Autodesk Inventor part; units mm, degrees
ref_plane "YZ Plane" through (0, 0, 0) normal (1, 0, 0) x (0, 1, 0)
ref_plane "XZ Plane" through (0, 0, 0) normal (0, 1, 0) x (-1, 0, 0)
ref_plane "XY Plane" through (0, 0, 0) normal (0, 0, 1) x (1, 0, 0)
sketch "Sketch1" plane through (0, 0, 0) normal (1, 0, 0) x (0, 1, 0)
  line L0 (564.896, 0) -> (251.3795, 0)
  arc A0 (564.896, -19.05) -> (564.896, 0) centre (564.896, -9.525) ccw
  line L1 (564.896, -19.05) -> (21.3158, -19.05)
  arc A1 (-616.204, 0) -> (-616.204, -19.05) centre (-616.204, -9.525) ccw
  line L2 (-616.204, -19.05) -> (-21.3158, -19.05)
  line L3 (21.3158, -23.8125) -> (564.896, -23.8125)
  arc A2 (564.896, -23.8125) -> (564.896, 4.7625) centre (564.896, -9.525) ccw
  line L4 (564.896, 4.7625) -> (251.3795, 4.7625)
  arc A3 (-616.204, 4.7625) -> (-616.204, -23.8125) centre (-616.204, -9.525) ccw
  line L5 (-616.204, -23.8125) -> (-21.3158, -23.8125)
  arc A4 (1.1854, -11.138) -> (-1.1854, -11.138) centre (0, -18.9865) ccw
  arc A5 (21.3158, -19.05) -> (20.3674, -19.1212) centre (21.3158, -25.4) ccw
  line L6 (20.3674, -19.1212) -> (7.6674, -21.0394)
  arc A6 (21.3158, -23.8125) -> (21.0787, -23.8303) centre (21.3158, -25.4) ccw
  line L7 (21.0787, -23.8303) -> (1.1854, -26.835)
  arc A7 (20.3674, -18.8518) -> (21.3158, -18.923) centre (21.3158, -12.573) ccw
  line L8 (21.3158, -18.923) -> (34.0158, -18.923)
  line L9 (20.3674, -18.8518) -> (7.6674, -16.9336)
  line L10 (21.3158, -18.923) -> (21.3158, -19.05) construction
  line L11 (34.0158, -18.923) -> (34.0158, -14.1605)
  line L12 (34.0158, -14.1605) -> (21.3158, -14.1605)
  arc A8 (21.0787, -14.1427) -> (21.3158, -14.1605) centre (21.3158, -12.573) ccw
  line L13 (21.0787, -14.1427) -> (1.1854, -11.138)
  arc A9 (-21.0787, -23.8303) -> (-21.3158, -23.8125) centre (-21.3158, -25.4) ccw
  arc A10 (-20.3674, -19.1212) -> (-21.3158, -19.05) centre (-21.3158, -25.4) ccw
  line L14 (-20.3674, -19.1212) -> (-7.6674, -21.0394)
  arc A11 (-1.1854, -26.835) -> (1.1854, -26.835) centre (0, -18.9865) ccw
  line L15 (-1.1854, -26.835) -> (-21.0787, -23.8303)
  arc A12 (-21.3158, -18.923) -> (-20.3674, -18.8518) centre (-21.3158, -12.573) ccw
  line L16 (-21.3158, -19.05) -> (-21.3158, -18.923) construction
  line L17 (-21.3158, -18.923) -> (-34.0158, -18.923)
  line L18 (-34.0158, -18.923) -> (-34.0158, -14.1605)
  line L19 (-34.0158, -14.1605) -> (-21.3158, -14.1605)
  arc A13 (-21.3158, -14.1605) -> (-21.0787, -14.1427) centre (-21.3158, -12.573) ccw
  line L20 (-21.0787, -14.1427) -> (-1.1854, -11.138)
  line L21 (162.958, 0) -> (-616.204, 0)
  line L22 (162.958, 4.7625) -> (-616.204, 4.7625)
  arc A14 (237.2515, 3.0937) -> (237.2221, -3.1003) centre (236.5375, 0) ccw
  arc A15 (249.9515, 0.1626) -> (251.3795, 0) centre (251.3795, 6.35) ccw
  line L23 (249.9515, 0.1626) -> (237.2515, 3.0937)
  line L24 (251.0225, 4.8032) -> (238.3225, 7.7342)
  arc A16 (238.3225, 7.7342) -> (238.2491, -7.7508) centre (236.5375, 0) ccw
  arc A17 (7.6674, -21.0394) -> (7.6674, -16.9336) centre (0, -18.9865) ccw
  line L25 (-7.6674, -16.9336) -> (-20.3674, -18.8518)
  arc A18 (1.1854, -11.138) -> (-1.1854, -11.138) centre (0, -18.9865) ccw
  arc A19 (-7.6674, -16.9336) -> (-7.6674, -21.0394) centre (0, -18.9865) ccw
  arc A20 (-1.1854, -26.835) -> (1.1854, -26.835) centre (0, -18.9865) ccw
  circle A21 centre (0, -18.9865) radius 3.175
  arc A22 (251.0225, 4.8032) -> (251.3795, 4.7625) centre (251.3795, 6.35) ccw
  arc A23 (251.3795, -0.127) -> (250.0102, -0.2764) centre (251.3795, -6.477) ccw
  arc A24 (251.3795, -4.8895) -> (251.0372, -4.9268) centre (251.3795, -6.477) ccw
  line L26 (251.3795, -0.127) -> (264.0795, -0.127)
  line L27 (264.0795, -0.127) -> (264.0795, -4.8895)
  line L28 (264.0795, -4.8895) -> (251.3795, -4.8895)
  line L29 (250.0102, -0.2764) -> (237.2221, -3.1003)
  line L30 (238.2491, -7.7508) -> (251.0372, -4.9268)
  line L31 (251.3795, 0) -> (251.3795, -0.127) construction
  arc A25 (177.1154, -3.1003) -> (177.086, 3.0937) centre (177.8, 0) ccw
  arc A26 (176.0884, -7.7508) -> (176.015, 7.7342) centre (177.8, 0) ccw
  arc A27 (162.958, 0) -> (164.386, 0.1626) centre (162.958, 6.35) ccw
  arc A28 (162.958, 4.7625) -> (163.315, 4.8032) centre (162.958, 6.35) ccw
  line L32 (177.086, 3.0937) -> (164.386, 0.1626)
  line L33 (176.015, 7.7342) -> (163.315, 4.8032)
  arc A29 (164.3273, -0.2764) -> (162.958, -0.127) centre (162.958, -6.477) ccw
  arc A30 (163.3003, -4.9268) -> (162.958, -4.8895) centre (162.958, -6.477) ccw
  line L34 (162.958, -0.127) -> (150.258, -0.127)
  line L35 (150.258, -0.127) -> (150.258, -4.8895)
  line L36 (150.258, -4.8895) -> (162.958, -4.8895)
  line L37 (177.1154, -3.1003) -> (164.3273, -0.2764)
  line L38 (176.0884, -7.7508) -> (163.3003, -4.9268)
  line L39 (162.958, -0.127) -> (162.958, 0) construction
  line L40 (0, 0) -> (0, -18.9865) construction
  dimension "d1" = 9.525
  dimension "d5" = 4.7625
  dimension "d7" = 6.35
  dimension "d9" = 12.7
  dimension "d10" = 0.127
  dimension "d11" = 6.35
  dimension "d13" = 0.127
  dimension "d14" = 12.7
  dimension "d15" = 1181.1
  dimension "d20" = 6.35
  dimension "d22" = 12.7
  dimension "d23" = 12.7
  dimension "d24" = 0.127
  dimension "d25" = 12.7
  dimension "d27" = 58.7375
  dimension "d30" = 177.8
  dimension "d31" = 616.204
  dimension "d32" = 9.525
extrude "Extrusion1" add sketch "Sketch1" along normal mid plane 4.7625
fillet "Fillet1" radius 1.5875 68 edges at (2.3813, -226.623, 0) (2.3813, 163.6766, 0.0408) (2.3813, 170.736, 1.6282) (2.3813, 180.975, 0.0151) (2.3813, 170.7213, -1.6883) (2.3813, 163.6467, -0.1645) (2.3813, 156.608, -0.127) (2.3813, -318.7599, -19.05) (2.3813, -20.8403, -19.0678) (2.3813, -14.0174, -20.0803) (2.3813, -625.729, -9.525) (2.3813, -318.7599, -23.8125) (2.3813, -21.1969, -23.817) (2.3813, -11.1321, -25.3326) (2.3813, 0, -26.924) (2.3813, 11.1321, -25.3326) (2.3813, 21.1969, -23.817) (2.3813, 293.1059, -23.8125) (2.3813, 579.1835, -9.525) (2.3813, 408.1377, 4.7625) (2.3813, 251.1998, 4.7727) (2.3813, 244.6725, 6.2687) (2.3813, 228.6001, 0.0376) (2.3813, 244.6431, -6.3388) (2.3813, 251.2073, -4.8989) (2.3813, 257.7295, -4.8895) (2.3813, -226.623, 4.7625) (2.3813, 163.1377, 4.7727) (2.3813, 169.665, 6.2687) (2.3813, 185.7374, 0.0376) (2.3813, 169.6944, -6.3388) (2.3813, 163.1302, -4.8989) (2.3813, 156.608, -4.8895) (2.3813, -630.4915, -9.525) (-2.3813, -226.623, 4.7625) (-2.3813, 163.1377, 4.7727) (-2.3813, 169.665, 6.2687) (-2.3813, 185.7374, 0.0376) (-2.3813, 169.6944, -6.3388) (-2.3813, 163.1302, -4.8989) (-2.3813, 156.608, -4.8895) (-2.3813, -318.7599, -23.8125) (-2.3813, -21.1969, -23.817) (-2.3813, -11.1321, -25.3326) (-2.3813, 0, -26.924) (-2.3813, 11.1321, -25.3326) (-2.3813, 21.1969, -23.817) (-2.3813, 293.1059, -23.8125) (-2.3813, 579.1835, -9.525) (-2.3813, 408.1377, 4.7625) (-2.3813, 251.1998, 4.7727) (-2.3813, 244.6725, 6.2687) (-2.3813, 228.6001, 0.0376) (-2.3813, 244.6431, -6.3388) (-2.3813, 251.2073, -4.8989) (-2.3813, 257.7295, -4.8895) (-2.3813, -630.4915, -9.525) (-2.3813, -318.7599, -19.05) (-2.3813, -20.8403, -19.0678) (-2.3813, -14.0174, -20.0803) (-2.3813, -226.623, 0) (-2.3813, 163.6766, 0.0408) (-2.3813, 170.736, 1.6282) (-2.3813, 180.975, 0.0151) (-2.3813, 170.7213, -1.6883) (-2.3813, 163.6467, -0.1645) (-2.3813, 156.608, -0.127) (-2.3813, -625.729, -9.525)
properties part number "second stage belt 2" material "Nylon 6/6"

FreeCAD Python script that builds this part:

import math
import FreeCAD as App
import Part
import Sketcher
Q = App.Units.Quantity


def edges_at(feature, points):
    """Names of the edges that pass closest to the given points."""
    edges = feature.Shape.Edges
    near = lambda p: min(range(len(edges)), key=lambda i: edges[i].distToShape(Part.Vertex(*p))[0])
    return sorted({f"Edge{near(p) + 1}" for p in points})

doc = App.newDocument("Part")
body = doc.addObject("PartDesign::Body", "Body")

sketch1 = body.newObject("Sketcher::SketchObject", "Sketch")
sketch1.AttachmentSupport = (doc.getObject("YZ_Plane"), [""])
sketch1.MapMode = "FlatFace"
sketch1.addGeometry([
    Part.LineSegment(App.Vector(251.3795, 0, 0), App.Vector(564.896, 0, 0)),
    Part.ArcOfCircle(Part.Circle(App.Vector(564.896, -9.525, 0), App.Vector(0, 0, 1), 9.525), math.radians(-90), math.radians(90)),
    Part.LineSegment(App.Vector(564.896, -19.05, 0), App.Vector(21.3158, -19.05, 0)),
    Part.ArcOfCircle(Part.Circle(App.Vector(21.315954, -25.404097, 0), App.Vector(0, 0, 1), 6.354097), math.radians(90.001385), math.radians(98.585332)),
    Part.LineSegment(App.Vector(20.3674, -19.1212, 0), App.Vector(7.6674, -21.0394, 0)),
    Part.ArcOfCircle(Part.Circle(App.Vector(0, -18.9865, 0), App.Vector(0, 0, 1), 7.937469), math.radians(-14.989028), math.radians(14.989028)),
    Part.LineSegment(App.Vector(7.6674, -16.9336, 0), App.Vector(20.3674, -18.8518, 0)),
    Part.ArcOfCircle(Part.Circle(App.Vector(21.315341, -12.577068, 0), App.Vector(0, 0, 1), 6.345932), math.radians(-98.590865), math.radians(-89.995852)),
    Part.LineSegment(App.Vector(21.3158, -18.923, 0), App.Vector(34.0158, -18.923, 0)),
    Part.LineSegment(App.Vector(34.0158, -18.923, 0), App.Vector(34.0158, -14.1605, 0)),
    Part.LineSegment(App.Vector(34.0158, -14.1605, 0), App.Vector(21.3158, -14.1605, 0)),
    Part.ArcOfCircle(Part.Circle(App.Vector(21.315685, -12.574017, 0), App.Vector(0, 0, 1), 1.586483), math.radians(-98.590865), math.radians(-89.995852)),
    Part.LineSegment(App.Vector(21.0787, -14.1427, 0), App.Vector(1.1854, -11.138, 0)),
    Part.ArcOfCircle(Part.Circle(App.Vector(0, -18.9865, 0), App.Vector(0, 0, 1), 7.937514), math.radians(81.411234), math.radians(98.588766)),
    Part.LineSegment(App.Vector(-1.1854, -11.138, 0), App.Vector(-21.0787, -14.1427, 0)),
    Part.ArcOfCircle(Part.Circle(App.Vector(-21.315838, -12.571976, 0), App.Vector(0, 0, 1), 1.588524), math.radians(-89.998615), math.radians(-81.414668)),
    Part.LineSegment(App.Vector(-21.3158, -14.1605, 0), App.Vector(-34.0158, -14.1605, 0)),
    Part.LineSegment(App.Vector(-34.0158, -14.1605, 0), App.Vector(-34.0158, -18.923, 0)),
    Part.LineSegment(App.Vector(-34.0158, -18.923, 0), App.Vector(-21.3158, -18.923, 0)),
    Part.ArcOfCircle(Part.Circle(App.Vector(-21.315954, -12.568903, 0), App.Vector(0, 0, 1), 6.354097), math.radians(-89.998615), math.radians(-81.414668)),
    Part.LineSegment(App.Vector(-20.3674, -18.8518, 0), App.Vector(-7.6674, -16.9336, 0)),
    Part.ArcOfCircle(Part.Circle(App.Vector(0, -18.9865, 0), App.Vector(0, 0, 1), 7.937469), math.radians(165.010972), math.radians(194.989028)),
    Part.LineSegment(App.Vector(-7.6674, -21.0394, 0), App.Vector(-20.3674, -19.1212, 0)),
    Part.ArcOfCircle(Part.Circle(App.Vector(-21.315341, -25.395932, 0), App.Vector(0, 0, 1), 6.345932), math.radians(81.409135), math.radians(90.004148)),
    Part.LineSegment(App.Vector(-21.3158, -19.05, 0), App.Vector(-616.204, -19.05, 0)),
    Part.ArcOfCircle(Part.Circle(App.Vector(-616.204, -9.525, 0), App.Vector(0, 0, 1), 9.525), math.radians(90), math.radians(270)),
    Part.LineSegment(App.Vector(-616.204, 0, 0), App.Vector(162.958, 0, 0)),
    Part.ArcOfCircle(Part.Circle(App.Vector(162.95779, 6.353696, 0), App.Vector(0, 0, 1), 6.353696), math.radians(-89.998108), math.radians(-77.009818)),
    Part.LineSegment(App.Vector(164.386, 0.1626, 0), App.Vector(177.086, 3.0937, 0)),
    Part.ArcOfCircle(Part.Circle(App.Vector(177.8, 0, 0), App.Vector(0, 0, 1), 3.174986), math.radians(-102.452079), math.radians(102.995834)),
    Part.LineSegment(App.Vector(177.1154, -3.1003, 0), App.Vector(164.3273, -0.2764, 0)),
    Part.ArcOfCircle(Part.Circle(App.Vector(162.958, -6.477, 0), App.Vector(0, 0, 1), 6.349994), math.radians(77.54704), math.radians(90)),
    Part.LineSegment(App.Vector(162.958, -0.127, 0), App.Vector(150.258, -0.127, 0)),
    Part.LineSegment(App.Vector(150.258, -0.127, 0), App.Vector(150.258, -4.8895, 0)),
    Part.LineSegment(App.Vector(150.258, -4.8895, 0), App.Vector(162.958, -4.8895, 0)),
    Part.ArcOfCircle(Part.Circle(App.Vector(162.958576, -6.473496, 0), App.Vector(0, 0, 1), 1.583996), math.radians(77.541335), math.radians(90.020841)),
    Part.LineSegment(App.Vector(163.3003, -4.9268, 0), App.Vector(176.0884, -7.7508, 0)),
    Part.ArcOfCircle(Part.Circle(App.Vector(177.8, 0, 0), App.Vector(0, 0, 1), 7.937536), math.radians(-102.452706), math.radians(102.995915)),
    Part.LineSegment(App.Vector(176.015, 7.7342, 0), App.Vector(163.315, 4.8032, 0)),
    Part.ArcOfCircle(Part.Circle(App.Vector(162.958163, 6.347137, 0), App.Vector(0, 0, 1), 1.584637), math.radians(-90.005877), math.radians(-76.986205)),
    Part.LineSegment(App.Vector(162.958, 4.7625, 0), App.Vector(-616.204, 4.7625, 0)),
    Part.ArcOfCircle(Part.Circle(App.Vector(-616.204, -9.525, 0), App.Vector(0, 0, 1), 14.2875), math.radians(90), math.radians(270)),
    Part.LineSegment(App.Vector(-616.204, -23.8125, 0), App.Vector(-21.3158, -23.8125, 0)),
    Part.ArcOfCircle(Part.Circle(App.Vector(-21.315685, -25.398983, 0), App.Vector(0, 0, 1), 1.586483), math.radians(81.409135), math.radians(90.004148)),
    Part.LineSegment(App.Vector(-21.0787, -23.8303, 0), App.Vector(-1.1854, -26.835, 0)),
    Part.ArcOfCircle(Part.Circle(App.Vector(0, -18.9865, 0), App.Vector(0, 0, 1), 7.937514), math.radians(-98.588766), math.radians(-81.411234)),
    Part.LineSegment(App.Vector(1.1854, -26.835, 0), App.Vector(21.0787, -23.8303, 0)),
    Part.ArcOfCircle(Part.Circle(App.Vector(21.315838, -25.401024, 0), App.Vector(0, 0, 1), 1.588524), math.radians(90.001385), math.radians(98.585332)),
    Part.LineSegment(App.Vector(21.3158, -23.8125, 0), App.Vector(564.896, -23.8125, 0)),
    Part.ArcOfCircle(Part.Circle(App.Vector(564.896, -9.525, 0), App.Vector(0, 0, 1), 14.2875), math.radians(-90), math.radians(90)),
    Part.LineSegment(App.Vector(564.896, 4.7625, 0), App.Vector(251.3795, 4.7625, 0)),
    Part.ArcOfCircle(Part.Circle(App.Vector(251.379987, 6.352837, 0), App.Vector(0, 0, 1), 1.590337), math.radians(-102.990363), math.radians(-90.017555)),
    Part.LineSegment(App.Vector(251.0225, 4.8032, 0), App.Vector(238.3225, 7.7342, 0)),
    Part.ArcOfCircle(Part.Circle(App.Vector(236.5375, 0, 0), App.Vector(0, 0, 1), 7.937511), math.radians(77.004085), math.radians(282.452706)),
    Part.LineSegment(App.Vector(238.2491, -7.7508, 0), App.Vector(251.0372, -4.9268, 0)),
    Part.ArcOfCircle(Part.Circle(App.Vector(251.379694, -6.480561, 0), App.Vector(0, 0, 1), 1.591061), math.radians(90.006975), math.radians(102.430849)),
    Part.LineSegment(App.Vector(251.3795, -4.8895, 0), App.Vector(264.0795, -4.8895, 0)),
    Part.LineSegment(App.Vector(264.0795, -4.8895, 0), App.Vector(264.0795, -0.127, 0)),
    Part.LineSegment(App.Vector(264.0795, -0.127, 0), App.Vector(251.3795, -0.127, 0)),
    Part.ArcOfCircle(Part.Circle(App.Vector(251.3795, -6.477, 0), App.Vector(0, 0, 1), 6.35), math.radians(90), math.radians(102.45296)),
    Part.LineSegment(App.Vector(250.0102, -0.2764, 0), App.Vector(237.2221, -3.1003, 0)),
    Part.ArcOfCircle(Part.Circle(App.Vector(236.5375, 0, 0), App.Vector(0, 0, 1), 3.175024), math.radians(77.004166), math.radians(282.452079)),
    Part.LineSegment(App.Vector(237.2515, 3.0937, 0), App.Vector(249.9515, 0.1626, 0)),
    Part.ArcOfCircle(Part.Circle(App.Vector(251.378874, 6.346356, 0), App.Vector(0, 0, 1), 6.346356), math.radians(-102.997726), math.radians(-89.994348)),
    Part.Circle(App.Vector(0, -18.9865, 0), App.Vector(0, 0, 1), 3.175),
], False)
sketch1.addConstraint([
    Sketcher.Constraint("Coincident", 0, 2, 1, 2),
    Sketcher.Constraint("Coincident", 1, 1, 2, 1),
    Sketcher.Constraint("Coincident", 2, 2, 3, 1),
    Sketcher.Constraint("Coincident", 3, 2, 4, 1),
    Sketcher.Constraint("Coincident", 4, 2, 5, 1),
    Sketcher.Constraint("Coincident", 5, 2, 6, 1),
    Sketcher.Constraint("Coincident", 6, 2, 7, 1),
    Sketcher.Constraint("Coincident", 7, 2, 8, 1),
    Sketcher.Constraint("Coincident", 8, 2, 9, 1),
    Sketcher.Constraint("Coincident", 9, 2, 10, 1),
    Sketcher.Constraint("Coincident", 10, 2, 11, 2),
    Sketcher.Constraint("Coincident", 11, 1, 12, 1),
    Sketcher.Constraint("Coincident", 12, 2, 13, 1),
    Sketcher.Constraint("Coincident", 13, 2, 14, 1),
    Sketcher.Constraint("Coincident", 14, 2, 15, 2),
    Sketcher.Constraint("Coincident", 15, 1, 16, 1),
    Sketcher.Constraint("Coincident", 16, 2, 17, 1),
    Sketcher.Constraint("Coincident", 17, 2, 18, 1),
    Sketcher.Constraint("Coincident", 18, 2, 19, 1),
    Sketcher.Constraint("Coincident", 19, 2, 20, 1),
    Sketcher.Constraint("Coincident", 20, 2, 21, 1),
    Sketcher.Constraint("Coincident", 21, 2, 22, 1),
    Sketcher.Constraint("Coincident", 22, 2, 23, 1),
    Sketcher.Constraint("Coincident", 23, 2, 24, 1),
    Sketcher.Constraint("Coincident", 24, 2, 25, 2),
    Sketcher.Constraint("Coincident", 25, 1, 26, 1),
    Sketcher.Constraint("Coincident", 26, 2, 27, 1),
    Sketcher.Constraint("Coincident", 27, 2, 28, 1),
    Sketcher.Constraint("Coincident", 28, 2, 29, 2),
    Sketcher.Constraint("Coincident", 29, 1, 30, 1),
    Sketcher.Constraint("Coincident", 30, 2, 31, 1),
    Sketcher.Constraint("Coincident", 31, 2, 32, 1),
    Sketcher.Constraint("Coincident", 32, 2, 33, 1),
    Sketcher.Constraint("Coincident", 33, 2, 34, 1),
    Sketcher.Constraint("Coincident", 34, 2, 35, 2),
    Sketcher.Constraint("Coincident", 35, 1, 36, 1),
    Sketcher.Constraint("Coincident", 36, 2, 37, 1),
    Sketcher.Constraint("Coincident", 37, 2, 38, 1),
    Sketcher.Constraint("Coincident", 38, 2, 39, 2),
    Sketcher.Constraint("Coincident", 39, 1, 40, 1),
    Sketcher.Constraint("Coincident", 40, 2, 41, 1),
    Sketcher.Constraint("Coincident", 41, 2, 42, 1),
    Sketcher.Constraint("Coincident", 42, 2, 43, 2),
    Sketcher.Constraint("Coincident", 43, 1, 44, 1),
    Sketcher.Constraint("Coincident", 44, 2, 45, 1),
    Sketcher.Constraint("Coincident", 45, 2, 46, 1),
    Sketcher.Constraint("Coincident", 46, 2, 47, 2),
    Sketcher.Constraint("Coincident", 47, 1, 48, 1),
    Sketcher.Constraint("Coincident", 48, 2, 49, 1),
    Sketcher.Constraint("Coincident", 49, 2, 50, 1),
    Sketcher.Constraint("Coincident", 50, 2, 51, 2),
    Sketcher.Constraint("Coincident", 51, 1, 52, 1),
    Sketcher.Constraint("Coincident", 52, 2, 53, 1),
    Sketcher.Constraint("Coincident", 53, 2, 54, 1),
    Sketcher.Constraint("Coincident", 54, 2, 55, 2),
    Sketcher.Constraint("Coincident", 55, 1, 56, 1),
    Sketcher.Constraint("Coincident", 56, 2, 57, 1),
    Sketcher.Constraint("Coincident", 57, 2, 58, 1),
    Sketcher.Constraint("Coincident", 58, 2, 59, 1),
    Sketcher.Constraint("Coincident", 59, 2, 60, 1),
    Sketcher.Constraint("Coincident", 60, 2, 61, 2),
    Sketcher.Constraint("Coincident", 61, 1, 62, 1),
    Sketcher.Constraint("Coincident", 62, 2, 63, 1),
    Sketcher.Constraint("Coincident", 63, 2, 0, 1),
    Sketcher.Constraint("Horizontal", 0),
    Sketcher.Constraint("Horizontal", 2),
    Sketcher.Constraint("Horizontal", 8),
    Sketcher.Constraint("Vertical", 9),
    Sketcher.Constraint("Horizontal", 10),
    Sketcher.Constraint("Horizontal", 16),
    Sketcher.Constraint("Vertical", 17),
    Sketcher.Constraint("Horizontal", 18),
    Sketcher.Constraint("Horizontal", 24),
    Sketcher.Constraint("Horizontal", 26),
    Sketcher.Constraint("Horizontal", 32),
    Sketcher.Constraint("Vertical", 33),
    Sketcher.Constraint("Horizontal", 34),
    Sketcher.Constraint("Horizontal", 40),
    Sketcher.Constraint("Horizontal", 42),
    Sketcher.Constraint("Horizontal", 48),
    Sketcher.Constraint("Horizontal", 50),
    Sketcher.Constraint("Horizontal", 56),
    Sketcher.Constraint("Vertical", 57),
    Sketcher.Constraint("Horizontal", 58),
    Sketcher.Constraint("Coincident", 13, 3, 5, 3),
    Sketcher.Constraint("Coincident", 21, 3, 5, 3),
    Sketcher.Constraint("Coincident", 37, 3, 29, 3),
    Sketcher.Constraint("Coincident", 41, 3, 25, 3),
    Sketcher.Constraint("Coincident", 45, 3, 5, 3),
    Sketcher.Constraint("Coincident", 49, 3, 1, 3),
    Sketcher.Constraint("Coincident", 61, 3, 53, 3),
    Sketcher.Constraint("Coincident", 64, 3, 5, 3),
    Sketcher.Constraint("PointOnObject", 5, 3, -2),
    Sketcher.Constraint("PointOnObject", 29, 3, -1),
    Sketcher.Constraint("PointOnObject", 53, 3, -1),
    Sketcher.Constraint("PointOnObject", 0, 2, -1),
    Sketcher.Constraint("PointOnObject", 25, 1, -1),
    Sketcher.Constraint("Diameter", 64, Q("0.25 in")),
    Sketcher.Constraint("Radius", 31, Q("0.25 in")),
    Sketcher.Constraint("Radius", 59, Q("0.25 in")),
    Sketcher.Constraint("DistanceX", 8, 1, 8, 2, Q("0.5 in")),
    Sketcher.Constraint("DistanceX", 10, 2, 10, 1, Q("0.5 in")),
    Sketcher.Constraint("DistanceX", 16, 2, 16, 1, Q("0.5 in")),
    Sketcher.Constraint("DistanceX", 18, 1, 18, 2, Q("0.5 in")),
    Sketcher.Constraint("DistanceX", 32, 2, 32, 1, Q("0.5 in")),
    Sketcher.Constraint("DistanceX", 34, 1, 34, 2, Q("0.5 in")),
    Sketcher.Constraint("DistanceX", 56, 1, 56, 2, Q("0.5 in")),
    Sketcher.Constraint("DistanceX", 58, 2, 58, 1, Q("0.5 in")),
    Sketcher.Constraint("DistanceX", -1, 1, 29, 3, Q("7 in")),
    Sketcher.Constraint("Radius", 1, Q("0.375 in")),
    Sketcher.Constraint("Radius", 25, Q("0.375 in")),
    Sketcher.Constraint("Radius", 29, Q("0.125 in")),
    Sketcher.Constraint("Radius", 61, Q("0.125 in")),
    Sketcher.Constraint("DistanceY", 9, 1, 9, 2, Q("0.1875 in")),
    Sketcher.Constraint("DistanceY", 17, 2, 17, 1, Q("0.1875 in")),
    Sketcher.Constraint("DistanceY", 33, 2, 33, 1, Q("0.1875 in")),
    Sketcher.Constraint("DistanceY", 57, 1, 57, 2, Q("0.1875 in")),
    Sketcher.Constraint("DistanceX", 25, 3, -1, 1, Q("24.26 in")),
    Sketcher.Constraint("DistanceX", 24, 2, -1, 1, Q("24.26 in")),
    Sketcher.Constraint("DistanceX", 25, 1, -1, 1, Q("24.26 in")),
    Sketcher.Constraint("DistanceX", 40, 2, -1, 1, Q("24.26 in")),
    Sketcher.Constraint("DistanceX", 41, 2, -1, 1, Q("24.26 in")),
    Sketcher.Constraint("DistanceY", 31, 2, -1, 1, Q("0.005 in")),
    Sketcher.Constraint("DistanceY", -1, 1, 39, 1, Q("0.1875 in")),
    Sketcher.Constraint("DistanceY", -1, 1, 49, 2, Q("0.1875 in")),
    Sketcher.Constraint("DistanceY", 57, 2, -1, 1, Q("0.005 in")),
    Sketcher.Constraint("Radius", 5, Q("0.3125 in")),
    Sketcher.Constraint("Radius", 13, Q("0.3125 in")),
    Sketcher.Constraint("Radius", 21, Q("0.3125 in")),
    Sketcher.Constraint("Radius", 37, Q("0.3125 in")),
    Sketcher.Constraint("Radius", 45, Q("0.3125 in")),
    Sketcher.Constraint("Radius", 53, Q("0.3125 in")),
    Sketcher.Constraint("Radius", 51, Q("0.0626 in")),
    Sketcher.Constraint("DistanceX", -1, 1, 1, 3, Q("22.24 in")),
    Sketcher.Constraint("DistanceX", -1, 1, 0, 2, Q("22.24 in")),
    Sketcher.Constraint("DistanceX", -1, 1, 1, 1, Q("22.24 in")),
    Sketcher.Constraint("DistanceX", -1, 1, 48, 2, Q("22.24 in")),
    Sketcher.Constraint("DistanceX", -1, 1, 49, 2, Q("22.24 in")),
    Sketcher.Constraint("Radius", 3, Q("6.354 mm")),
    Sketcher.Constraint("Radius", 7, Q("6.346 mm")),
    Sketcher.Constraint("Radius", 11, Q("1.5865 mm")),
    Sketcher.Constraint("Radius", 15, Q("1.5885 mm")),
    Sketcher.Constraint("Radius", 19, Q("6.354 mm")),
    Sketcher.Constraint("Radius", 23, Q("6.346 mm")),
    Sketcher.Constraint("Radius", 27, Q("6.3537 mm")),
    Sketcher.Constraint("Radius", 35, Q("1.584 mm")),
    Sketcher.Constraint("Radius", 39, Q("1.5846 mm")),
    Sketcher.Constraint("Radius", 43, Q("1.5865 mm")),
    Sketcher.Constraint("Radius", 47, Q("1.5885 mm")),
    Sketcher.Constraint("Radius", 55, Q("1.591 mm")),
    Sketcher.Constraint("Radius", 63, Q("6.3464 mm")),
    Sketcher.Constraint("DistanceX", 2, 2, 2, 1, Q("21.4008 in")),
    Sketcher.Constraint("DistanceX", 24, 2, 24, 1, Q("23.4208 in")),
    Sketcher.Constraint("DistanceX", 42, 1, 42, 2, Q("23.4208 in")),
    Sketcher.Constraint("DistanceX", 48, 1, 48, 2, Q("21.4008 in")),
    Sketcher.Constraint("DistanceX", -1, 1, 53, 3, Q("9.3125 in")),
    Sketcher.Constraint("DistanceY", 7, 2, -1, 1, Q("0.745 in")),
    Sketcher.Constraint("DistanceY", 17, 2, -1, 1, Q("0.745 in")),
    Sketcher.Constraint("Distance", 30, Q("0.5156 in")),
    Sketcher.Constraint("Distance", 36, Q("0.5156 in")),
    Sketcher.Constraint("Distance", 54, Q("0.5156 in")),
    Sketcher.Constraint("Distance", 60, Q("0.5156 in")),
    Sketcher.Constraint("DistanceX", 0, 1, 0, 2, Q("313.5165 mm")),
    Sketcher.Constraint("DistanceX", 26, 1, 26, 2, Q("779.162 mm")),
    Sketcher.Constraint("DistanceX", 40, 2, 40, 1, Q("779.162 mm")),
    Sketcher.Constraint("DistanceX", 50, 2, 50, 1, Q("313.5165 mm")),
    Sketcher.Constraint("DistanceX", -1, 1, 3, 3, Q("0.8392 in")),
    Sketcher.Constraint("DistanceY", 5, 3, -1, 1, Q("0.7475 in")),
    Sketcher.Constraint("DistanceX", -1, 1, 11, 3, Q("0.8392 in")),
    Sketcher.Constraint("DistanceX", 15, 3, -1, 1, Q("0.8392 in")),
    Sketcher.Constraint("DistanceX", 19, 3, -1, 1, Q("0.8392 in")),
    Sketcher.Constraint("DistanceX", -1, 1, 35, 3, Q("6.4157 in")),
    Sketcher.Constraint("DistanceX", 43, 3, -1, 1, Q("0.8392 in")),
    Sketcher.Constraint("DistanceX", -1, 1, 47, 3, Q("0.8392 in")),
    Sketcher.Constraint("DistanceX", -1, 1, 63, 3, Q("9.8968 in")),
    Sketcher.Constraint("DistanceY", 3, 2, -1, 1, Q("0.7528 in")),
    Sketcher.Constraint("DistanceY", 6, 2, -1, 1, Q("0.7422 in")),
    Sketcher.Constraint("DistanceX", -1, 1, 7, 2, Q("0.8392 in")),
    Sketcher.Constraint("DistanceY", 11, 1, -1, 1, Q("0.5568 in")),
    Sketcher.Constraint("DistanceY", 12, 2, -1, 1, Q("0.4385 in")),
    Sketcher.Constraint("DistanceY", 13, 2, -1, 1, Q("0.4385 in")),
    Sketcher.Constraint("DistanceY", 14, 2, -1, 1, Q("0.5568 in")),
    Sketcher.Constraint("DistanceX", 15, 1, -1, 1, Q("0.8392 in")),
    Sketcher.Constraint("DistanceY", 19, 2, -1, 1, Q("0.7422 in")),
    Sketcher.Constraint("DistanceY", 22, 2, -1, 1, Q("0.7528 in")),
    Sketcher.Constraint("DistanceX", -1, 1, 27, 2, Q("6.4719 in")),
    Sketcher.Constraint("DistanceY", -1, 1, 27, 2, Q("0.0064 in")),
    Sketcher.Constraint("DistanceX", -1, 1, 28, 2, Q("6.9719 in")),
    Sketcher.Constraint("DistanceY", -1, 1, 37, 2, Q("0.3045 in")),
    Sketcher.Constraint("DistanceY", -1, 1, 38, 2, Q("0.1891 in")),
    Sketcher.Constraint("DistanceY", 43, 1, -1, 1, Q("0.9382 in")),
    Sketcher.Constraint("DistanceY", 44, 2, -1, 1, Q("1.0565 in")),
    Sketcher.Constraint("DistanceY", 45, 2, -1, 1, Q("1.0565 in")),
    Sketcher.Constraint("DistanceY", 46, 2, -1, 1, Q("0.9382 in")),
    Sketcher.Constraint("DistanceY", -1, 1, 51, 1, Q("0.1891 in")),
    Sketcher.Constraint("DistanceY", -1, 1, 52, 2, Q("0.3045 in")),
    Sketcher.Constraint("DistanceX", -1, 1, 61, 1, Q("9.3406 in")),
    Sketcher.Constraint("DistanceX", -1, 1, 62, 2, Q("9.8406 in")),
    Sketcher.Constraint("Distance", 4, Q("12.844 mm")),
    Sketcher.Constraint("Distance", 6, Q("12.844 mm")),
    Sketcher.Constraint("Distance", 20, Q("12.844 mm")),
    Sketcher.Constraint("Distance", 22, Q("12.844 mm")),
    Sketcher.Constraint("Distance", 38, Q("13.0338 mm")),
    Sketcher.Constraint("Distance", 52, Q("13.0338 mm")),
    Sketcher.Constraint("DistanceX", -1, 1, 7, 3, Q("21.3153 mm")),
    Sketcher.Constraint("DistanceX", 23, 3, -1, 1, Q("21.3153 mm")),
    Sketcher.Constraint("DistanceX", -1, 1, 31, 3, Q("162.958 mm")),
    Sketcher.Constraint("DistanceX", -1, 1, 55, 3, Q("251.3797 mm")),
    Sketcher.Constraint("DistanceX", -1, 1, 59, 3, Q("251.3795 mm")),
    Sketcher.Constraint("DistanceX", -1, 1, 29, 1, Q("177.1154 mm")),
    Sketcher.Constraint("DistanceX", -1, 1, 31, 2, Q("162.958 mm")),
    Sketcher.Constraint("DistanceX", -1, 1, 35, 1, Q("163.3003 mm")),
    Sketcher.Constraint("DistanceX", -1, 1, 53, 2, Q("238.249 mm")),
    Sketcher.Constraint("DistanceX", -1, 1, 55, 1, Q("251.3795 mm")),
    Sketcher.Constraint("DistanceX", -1, 1, 59, 2, Q("250.0102 mm")),
])
pad1 = body.newObject("PartDesign::Pad", "Pad")
pad1.Profile = sketch1
pad1.Length = Q("0.1875 in")
pad1.Midplane = True
doc.recompute()

fillet = body.newObject("PartDesign::Fillet", "Fillet")
fillet.Base = (pad1, edges_at(pad1, [
    (2.381, -226.623, 0),
    (2.381, 163.677, 0.041),
    (2.381, 170.736, 1.628),
    (2.381, 180.975, 0.015),
    (2.381, 170.721, -1.688),
    (2.381, 163.647, -0.165),
    (2.381, 156.608, -0.127),
    (2.381, -318.76, -19.05),
    (2.381, -20.84, -19.068),
    (2.381, -14.017, -20.08),
    (2.381, -625.729, -9.525),
    (2.381, -318.76, -23.812),
    (2.381, -21.197, -23.817),
    (2.381, -11.132, -25.333),
    (2.381, 0, -26.924),
    (2.381, 11.132, -25.333),
    (2.381, 21.197, -23.817),
    (2.381, 293.106, -23.812),
    (2.381, 579.183, -9.525),
    (2.381, 408.138, 4.763),
    (2.381, 251.2, 4.773),
    (2.381, 244.673, 6.269),
    (2.381, 228.6, 0.038),
    (2.381, 244.643, -6.339),
    (2.381, 251.207, -4.899),
    (2.381, 257.729, -4.889),
    (2.381, -226.623, 4.763),
    (2.381, 163.138, 4.773),
    (2.381, 169.665, 6.269),
    (2.381, 185.737, 0.038),
    (2.381, 169.694, -6.339),
    (2.381, 163.13, -4.899),
    (2.381, 156.608, -4.889),
    (2.381, -630.491, -9.525),
    (-2.381, -226.623, 4.763),
    (-2.381, 163.138, 4.773),
    (-2.381, 169.665, 6.269),
    (-2.381, 185.737, 0.038),
    (-2.381, 169.694, -6.339),
    (-2.381, 163.13, -4.899),
    (-2.381, 156.608, -4.889),
    (-2.381, -318.76, -23.812),
    (-2.381, -21.197, -23.817),
    (-2.381, -11.132, -25.333),
    (-2.381, 0, -26.924),
    (-2.381, 11.132, -25.333),
    (-2.381, 21.197, -23.817),
    (-2.381, 293.106, -23.812),
    (-2.381, 579.183, -9.525),
    (-2.381, 408.138, 4.763),
    (-2.381, 251.2, 4.773),
    (-2.381, 244.673, 6.269),
    (-2.381, 228.6, 0.038),
    (-2.381, 244.643, -6.339),
    (-2.381, 251.207, -4.899),
    (-2.381, 257.729, -4.889),
    (-2.381, -630.491, -9.525),
    (-2.381, -318.76, -19.05),
    (-2.381, -20.84, -19.068),
    (-2.381, -14.017, -20.08),
    (-2.381, -226.623, 0),
    (-2.381, 163.677, 0.041),
    (-2.381, 170.736, 1.628),
    (-2.381, 180.975, 0.015),
    (-2.381, 170.721, -1.688),
    (-2.381, 163.647, -0.165),
    (-2.381, 156.608, -0.127),
    (-2.381, -625.729, -9.525),
]))
fillet.Radius = Q("0.0625 in")

doc.recompute()
